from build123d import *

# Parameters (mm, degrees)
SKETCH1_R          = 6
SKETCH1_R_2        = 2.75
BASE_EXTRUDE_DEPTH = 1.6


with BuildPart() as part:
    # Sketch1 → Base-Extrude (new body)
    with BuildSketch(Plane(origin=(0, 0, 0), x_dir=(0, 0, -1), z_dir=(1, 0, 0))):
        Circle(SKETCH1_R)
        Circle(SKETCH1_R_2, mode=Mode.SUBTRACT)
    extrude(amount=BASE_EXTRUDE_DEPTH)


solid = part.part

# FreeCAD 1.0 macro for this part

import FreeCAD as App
import Part
import Sketcher

V = App.Vector

doc = App.newDocument("Part")
body = doc.addObject("PartDesign::Body", "Body")

# Sketch on YZ plane
sketch1 = doc.addObject("Sketcher::SketchObject", "Sketch")
body.addObject(sketch1)
sketch1.AttachmentSupport = (doc.YZ_Plane, [""])
sketch1.MapMode = "FlatFace"
sketch1.addGeometry([
    Part.Circle(V(0, 0, 0), V(0, 0, 1), 6),
    Part.Circle(V(0, 0, 0), V(0, 0, 1), 2.8),
], False)
sketch1.addConstraint([
    Sketcher.Constraint("Coincident", 0, 3, -1, 1),
    Sketcher.Constraint("Coincident", 1, 3, -1, 1),
    Sketcher.Constraint("Diameter", 0, 12.0),
    Sketcher.Constraint("Diameter", 1, 5.5),
])
pad1 = doc.addObject("PartDesign::Pad", "Pad")
body.addObject(pad1)
pad1.Profile = sketch1
pad1.Length = 1.6

doc.recompute()
